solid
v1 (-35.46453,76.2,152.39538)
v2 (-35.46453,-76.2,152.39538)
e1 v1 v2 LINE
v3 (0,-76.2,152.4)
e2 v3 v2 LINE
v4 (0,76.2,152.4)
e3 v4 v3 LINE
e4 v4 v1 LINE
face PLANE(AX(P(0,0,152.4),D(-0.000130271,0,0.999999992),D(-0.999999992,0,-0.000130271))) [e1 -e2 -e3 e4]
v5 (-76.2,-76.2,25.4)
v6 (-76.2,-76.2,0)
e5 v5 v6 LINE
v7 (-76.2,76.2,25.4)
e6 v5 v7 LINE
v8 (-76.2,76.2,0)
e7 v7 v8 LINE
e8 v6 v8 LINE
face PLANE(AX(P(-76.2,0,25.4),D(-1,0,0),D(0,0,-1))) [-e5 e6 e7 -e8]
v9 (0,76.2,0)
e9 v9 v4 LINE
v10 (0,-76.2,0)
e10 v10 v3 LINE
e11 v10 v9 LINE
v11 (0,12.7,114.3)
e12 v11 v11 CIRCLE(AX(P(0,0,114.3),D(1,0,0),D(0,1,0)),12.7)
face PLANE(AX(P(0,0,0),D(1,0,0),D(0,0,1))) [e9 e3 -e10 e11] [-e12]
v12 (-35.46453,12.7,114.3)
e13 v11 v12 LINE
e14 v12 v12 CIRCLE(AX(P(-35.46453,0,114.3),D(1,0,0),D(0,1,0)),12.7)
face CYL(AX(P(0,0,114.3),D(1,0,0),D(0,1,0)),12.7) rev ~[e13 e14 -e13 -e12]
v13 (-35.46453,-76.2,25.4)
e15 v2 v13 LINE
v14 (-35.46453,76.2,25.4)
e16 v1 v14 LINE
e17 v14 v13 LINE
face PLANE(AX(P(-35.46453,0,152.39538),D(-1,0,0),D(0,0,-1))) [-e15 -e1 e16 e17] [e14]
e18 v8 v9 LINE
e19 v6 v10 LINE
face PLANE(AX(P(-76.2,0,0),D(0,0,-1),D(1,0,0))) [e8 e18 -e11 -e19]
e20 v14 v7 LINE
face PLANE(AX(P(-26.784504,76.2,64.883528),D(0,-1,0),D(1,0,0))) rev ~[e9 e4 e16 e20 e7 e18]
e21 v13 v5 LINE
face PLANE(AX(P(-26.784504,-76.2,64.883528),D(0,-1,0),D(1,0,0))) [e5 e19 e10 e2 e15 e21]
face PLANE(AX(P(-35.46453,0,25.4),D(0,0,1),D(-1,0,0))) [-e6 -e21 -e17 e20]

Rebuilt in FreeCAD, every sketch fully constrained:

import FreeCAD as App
import Part
import Sketcher
Q = App.Units.Quantity

doc = App.newDocument("Part")
body = doc.addObject("PartDesign::Body", "Body")

# Sketch on XZ plane
sketch1 = body.newObject("Sketcher::SketchObject", "Sketch")
sketch1.AttachmentSupport = (doc.getObject("XZ_Plane"), [""])
sketch1.MapMode = "FlatFace"
sketch1.addGeometry(Part.LineSegment(App.Vector(0, 0, 0), App.Vector(0, 152, 0)), False)
sketch1.addGeometry(Part.LineSegment(App.Vector(0, 152, 0), App.Vector(-35, 152, 0)), False)
sketch1.addGeometry(Part.LineSegment(App.Vector(-35, 152, 0), App.Vector(-35, 25, 0)), False)
sketch1.addGeometry(Part.LineSegment(App.Vector(-35, 25, 0), App.Vector(-76, 25, 0)), False)
sketch1.addGeometry(Part.LineSegment(App.Vector(-76, 25, 0), App.Vector(-76, 0, 0)), False)
sketch1.addGeometry(Part.LineSegment(App.Vector(-76, 0, 0), App.Vector(0, 0, 0)), False)
sketch1.addConstraint(Sketcher.Constraint("Coincident", 0, 2, 1, 1))
sketch1.addConstraint(Sketcher.Constraint("Coincident", 1, 2, 2, 1))
sketch1.addConstraint(Sketcher.Constraint("Coincident", 2, 2, 3, 1))
sketch1.addConstraint(Sketcher.Constraint("Coincident", 3, 2, 4, 1))
sketch1.addConstraint(Sketcher.Constraint("Coincident", 4, 2, 5, 1))
sketch1.addConstraint(Sketcher.Constraint("Coincident", 5, 2, 0, 1))
sketch1.addConstraint(Sketcher.Constraint("Vertical", 0))
sketch1.addConstraint(Sketcher.Constraint("Vertical", 2))
sketch1.addConstraint(Sketcher.Constraint("Horizontal", 3))
sketch1.addConstraint(Sketcher.Constraint("Vertical", 4))
sketch1.addConstraint(Sketcher.Constraint("Horizontal", 5))
sketch1.addConstraint(Sketcher.Constraint("Coincident", 5, 2, -1, 1))
sketch1.addConstraint(Sketcher.Constraint("DistanceX", 5, 1, 5, 2, Q("3 in")))
sketch1.addConstraint(Sketcher.Constraint("DistanceY", 0, 1, 0, 2, Q("6 in")))
sketch1.addConstraint(Sketcher.Constraint("DistanceY", 4, 2, 4, 1, Q("1 in")))
sketch1.addConstraint(Sketcher.Constraint("DistanceX", 3, 2, 3, 1, 40.73547))
sketch1.addConstraint(Sketcher.Constraint("DistanceY", 2, 2, 2, 1, 126.99538))
pad1 = body.newObject("PartDesign::Pad", "Pad")
pad1.Profile = sketch1
pad1.Length = Q("6 in")
pad1.Midplane = True

# Sketch on YZ plane
sketch2 = body.newObject("Sketcher::SketchObject", "Sketch001")
sketch2.AttachmentSupport = (doc.getObject("YZ_Plane"), [""])
sketch2.MapMode = "FlatFace"
sketch2.addGeometry(Part.Circle(App.Vector(0, 114, 0), App.Vector(0, 0, 1), 13), False)
sketch2.addConstraint(Sketcher.Constraint("PointOnObject", 0, 3, -2))
sketch2.addConstraint(Sketcher.Constraint("Diameter", 0, Q("1 in")))
sketch2.addConstraint(Sketcher.Constraint("DistanceY", -1, 1, 0, 3, Q("4.5 in")))
pocket1 = body.newObject("PartDesign::Pocket", "Pocket")
pocket1.Profile = sketch2
pocket1.Type = "ThroughAll"

doc.recompute()
